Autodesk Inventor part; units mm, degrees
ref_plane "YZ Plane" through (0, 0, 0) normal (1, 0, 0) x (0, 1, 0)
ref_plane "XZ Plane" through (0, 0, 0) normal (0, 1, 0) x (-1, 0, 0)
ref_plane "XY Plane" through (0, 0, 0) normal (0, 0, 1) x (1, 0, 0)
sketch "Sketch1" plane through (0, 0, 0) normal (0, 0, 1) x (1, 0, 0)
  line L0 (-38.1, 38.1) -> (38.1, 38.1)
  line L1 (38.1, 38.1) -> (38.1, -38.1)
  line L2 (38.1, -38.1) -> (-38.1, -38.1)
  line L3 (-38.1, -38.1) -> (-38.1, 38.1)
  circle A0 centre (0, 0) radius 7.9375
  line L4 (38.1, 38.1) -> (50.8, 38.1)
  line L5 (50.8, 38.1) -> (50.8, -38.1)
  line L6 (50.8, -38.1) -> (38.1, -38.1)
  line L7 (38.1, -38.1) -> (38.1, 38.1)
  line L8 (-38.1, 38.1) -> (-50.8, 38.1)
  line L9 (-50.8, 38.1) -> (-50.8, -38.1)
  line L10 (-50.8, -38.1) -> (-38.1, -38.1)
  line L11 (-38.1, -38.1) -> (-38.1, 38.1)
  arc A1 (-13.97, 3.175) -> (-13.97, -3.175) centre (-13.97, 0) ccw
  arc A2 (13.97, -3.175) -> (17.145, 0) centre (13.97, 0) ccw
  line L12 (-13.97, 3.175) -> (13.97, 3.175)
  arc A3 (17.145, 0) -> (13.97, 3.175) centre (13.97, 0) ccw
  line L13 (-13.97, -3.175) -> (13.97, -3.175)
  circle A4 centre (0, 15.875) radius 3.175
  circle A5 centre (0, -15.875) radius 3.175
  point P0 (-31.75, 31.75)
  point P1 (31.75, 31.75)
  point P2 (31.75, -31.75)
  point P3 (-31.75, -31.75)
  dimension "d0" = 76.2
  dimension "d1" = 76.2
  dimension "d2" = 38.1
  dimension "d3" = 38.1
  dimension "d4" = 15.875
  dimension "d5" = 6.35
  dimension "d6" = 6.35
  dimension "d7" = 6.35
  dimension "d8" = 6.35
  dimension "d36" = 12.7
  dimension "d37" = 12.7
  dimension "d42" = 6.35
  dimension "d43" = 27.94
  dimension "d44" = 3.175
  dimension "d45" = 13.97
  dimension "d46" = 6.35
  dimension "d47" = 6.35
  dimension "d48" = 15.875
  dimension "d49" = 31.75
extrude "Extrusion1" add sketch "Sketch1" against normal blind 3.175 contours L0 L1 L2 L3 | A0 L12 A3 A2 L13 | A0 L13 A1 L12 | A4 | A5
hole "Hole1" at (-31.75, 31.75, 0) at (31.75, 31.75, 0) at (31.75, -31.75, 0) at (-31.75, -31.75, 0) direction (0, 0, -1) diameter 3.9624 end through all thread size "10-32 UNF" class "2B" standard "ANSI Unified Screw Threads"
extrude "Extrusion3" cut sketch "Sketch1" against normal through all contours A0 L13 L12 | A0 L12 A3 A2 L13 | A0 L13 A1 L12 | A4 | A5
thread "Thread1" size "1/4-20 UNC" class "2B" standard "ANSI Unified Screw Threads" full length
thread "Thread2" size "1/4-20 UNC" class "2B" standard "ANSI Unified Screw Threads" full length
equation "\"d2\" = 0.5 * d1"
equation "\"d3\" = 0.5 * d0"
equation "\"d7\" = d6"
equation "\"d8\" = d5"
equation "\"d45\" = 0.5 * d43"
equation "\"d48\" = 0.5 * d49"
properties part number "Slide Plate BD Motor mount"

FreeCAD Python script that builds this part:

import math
import FreeCAD as App
import Part
import Sketcher

V = App.Vector
Q = App.Units.Quantity

doc = App.newDocument("Part")
params = doc.addObject("Spreadsheet::Sheet", "Params")
for row, (alias, value) in enumerate([
    ("sketch1_width", "3 in"),
    ("sketch1_diameter", "0.625 in"),
    ("pad1_length", "0.125 in"),
    ("sketch2_diameter", "0.156 in"),
    ("hole_diameter", "0.156 in"),
    ("sketch3_diameter", "0.25 in"),
    ("sketch3_width", "1.1 in"),
], start=1):
    params.set(f"A{row}", alias)
    params.set(f"B{row}", "=" + value)
    params.setAlias(f"B{row}", alias)

body = doc.addObject("PartDesign::Body", "Body")

# Sketch on XY plane
sketch1 = body.newObject("Sketcher::SketchObject", "Sketch")
sketch1.AttachmentSupport = (doc.getObject("XY_Plane"), [""])
sketch1.MapMode = "FlatFace"
sketch1.addGeometry(Part.LineSegment(V(38, 38, 0), V(-38, 38, 0)), False)
sketch1.addGeometry(Part.LineSegment(V(-38, 38, 0), V(-38, -38, 0)), False)
sketch1.addGeometry(Part.LineSegment(V(-38, -38, 0), V(38, -38, 0)), False)
sketch1.addGeometry(Part.LineSegment(V(38, -38, 0), V(38, 38, 0)), False)
sketch1.addGeometry(Part.Circle(V(0, 0, 0), V(0, 0, 1), 8), False)
sketch1.addConstraint(Sketcher.Constraint("Coincident", 0, 2, 1, 1))
sketch1.addConstraint(Sketcher.Constraint("Coincident", 1, 2, 2, 1))
sketch1.addConstraint(Sketcher.Constraint("Coincident", 2, 2, 3, 1))
sketch1.addConstraint(Sketcher.Constraint("Coincident", 3, 2, 0, 1))
sketch1.addConstraint(Sketcher.Constraint("Horizontal", 0))
sketch1.addConstraint(Sketcher.Constraint("Vertical", 1))
sketch1.addConstraint(Sketcher.Constraint("Horizontal", 2))
sketch1.addConstraint(Sketcher.Constraint("Vertical", 3))
sketch1.addConstraint(Sketcher.Constraint("Coincident", 4, 3, -1, 1))
sketch1.addConstraint(Sketcher.Constraint("Symmetric", 0, 2, 2, 2, -1, 1))
sketch1.addConstraint(Sketcher.Constraint("Equal", 2, 1))
sketch1.addConstraint(Sketcher.Constraint("DistanceX", 0, 2, 0, 1, Q("3 in")))
sketch1.addConstraint(Sketcher.Constraint("Diameter", 4, Q("0.625 in")))
sketch1.setExpression("Constraints[11]", "Params.sketch1_width")
sketch1.setExpression("Constraints[12]", "Params.sketch1_diameter")
pad1 = body.newObject("PartDesign::Pad", "Pad")
pad1.Profile = sketch1
pad1.setExpression("Length", "Params.pad1_length")
pad1.Reversed = True

# Sketch on XY plane
sketch2 = body.newObject("Sketcher::SketchObject", "Sketch001")
sketch2.AttachmentSupport = (doc.getObject("XY_Plane"), [""])
sketch2.MapMode = "FlatFace"
sketch2.addGeometry(Part.Circle(V(-31.8, 31.8, 0), V(0, 0, 1), 2), False)
sketch2.addGeometry(Part.Circle(V(31.8, 31.8, 0), V(0, 0, 1), 2), False)
sketch2.addGeometry(Part.Circle(V(31.8, -31.8, 0), V(0, 0, 1), 2), False)
sketch2.addGeometry(Part.Circle(V(-31.8, -31.8, 0), V(0, 0, 1), 2), False)
sketch2.addConstraint(Sketcher.Constraint("Equal", 0, 1))
sketch2.addConstraint(Sketcher.Constraint("Equal", 1, 2))
sketch2.addConstraint(Sketcher.Constraint("Equal", 2, 3))
sketch2.addConstraint(Sketcher.Constraint("Symmetric", 0, 3, 2, 3, -1, 1))
sketch2.addConstraint(Sketcher.Constraint("Symmetric", 1, 3, 3, 3, -1, 1))
sketch2.addConstraint(Sketcher.Constraint("Symmetric", 0, 3, 1, 3, -2))
sketch2.addConstraint(Sketcher.Constraint("Diameter", 0, Q("0.156 in")))
sketch2.addConstraint(Sketcher.Constraint("DistanceX", 0, 3, 1, 3, Q("2.5 in")))
sketch2.addConstraint(Sketcher.Constraint("DistanceY", 2, 3, 1, 3, Q("2.5 in")))
sketch2.setExpression("Constraints[6]", "Params.sketch2_diameter")
doc.recompute()
hole = body.newObject("PartDesign::Hole", "Hole")
hole.Profile = sketch2
hole.ThreadType = "None"
hole.setExpression("Diameter", "Params.hole_diameter")
hole.DepthType = "ThroughAll"

# Sketch on XY plane
sketch3 = body.newObject("Sketcher::SketchObject", "Sketch002")
sketch3.AttachmentSupport = (doc.getObject("XY_Plane"), [""])
sketch3.MapMode = "FlatFace"
sketch3.addGeometry(Part.ArcOfCircle(Part.Circle(V(14, 0, 0), V(0, 0, 1), 3.2), math.radians(-90), math.radians(90)), False)
sketch3.addGeometry(Part.LineSegment(V(14, 3.2, 0), V(-14, 3.2, 0)), False)
sketch3.addGeometry(Part.ArcOfCircle(Part.Circle(V(-14, 0, 0), V(0, 0, 1), 3.2), math.radians(90), math.radians(270)), False)
sketch3.addGeometry(Part.LineSegment(V(-14, -3.2, 0), V(14, -3.2, 0)), False)
sketch3.addGeometry(Part.Circle(V(0, 15.9, 0), V(0, 0, 1), 3.2), False)
sketch3.addGeometry(Part.Circle(V(0, -15.9, 0), V(0, 0, 1), 3.2), False)
sketch3.addConstraint(Sketcher.Constraint("Tangent", 0, 2, 1, 1))
sketch3.addConstraint(Sketcher.Constraint("Tangent", 1, 2, 2, 1))
sketch3.addConstraint(Sketcher.Constraint("Tangent", 2, 2, 3, 1))
sketch3.addConstraint(Sketcher.Constraint("Tangent", 3, 2, 0, 1))
sketch3.addConstraint(Sketcher.Constraint("Horizontal", 1))
sketch3.addConstraint(Sketcher.Constraint("Horizontal", 3))
sketch3.addConstraint(Sketcher.Constraint("Equal", 2, 4))
sketch3.addConstraint(Sketcher.Constraint("Equal", 4, 5))
sketch3.addConstraint(Sketcher.Constraint("Symmetric", 0, 3, 2, 3, -1, 1))
sketch3.addConstraint(Sketcher.Constraint("Symmetric", 4, 3, 5, 3, -1, 1))
sketch3.addConstraint(Sketcher.Constraint("PointOnObject", 4, 3, -2))
sketch3.addConstraint(Sketcher.Constraint("Diameter", 4, Q("0.25 in")))
sketch3.addConstraint(Sketcher.Constraint("DistanceX", 1, 2, 1, 1, Q("1.1 in")))
sketch3.addConstraint(Sketcher.Constraint("DistanceY", 0, 2, 4, 3, Q("0.5 in")))
sketch3.setExpression("Constraints[11]", "Params.sketch3_diameter")
sketch3.setExpression("Constraints[12]", "Params.sketch3_width")
pocket1 = body.newObject("PartDesign::Pocket", "Pocket")
pocket1.Profile = sketch3
pocket1.Type = "ThroughAll"

doc.recompute()
